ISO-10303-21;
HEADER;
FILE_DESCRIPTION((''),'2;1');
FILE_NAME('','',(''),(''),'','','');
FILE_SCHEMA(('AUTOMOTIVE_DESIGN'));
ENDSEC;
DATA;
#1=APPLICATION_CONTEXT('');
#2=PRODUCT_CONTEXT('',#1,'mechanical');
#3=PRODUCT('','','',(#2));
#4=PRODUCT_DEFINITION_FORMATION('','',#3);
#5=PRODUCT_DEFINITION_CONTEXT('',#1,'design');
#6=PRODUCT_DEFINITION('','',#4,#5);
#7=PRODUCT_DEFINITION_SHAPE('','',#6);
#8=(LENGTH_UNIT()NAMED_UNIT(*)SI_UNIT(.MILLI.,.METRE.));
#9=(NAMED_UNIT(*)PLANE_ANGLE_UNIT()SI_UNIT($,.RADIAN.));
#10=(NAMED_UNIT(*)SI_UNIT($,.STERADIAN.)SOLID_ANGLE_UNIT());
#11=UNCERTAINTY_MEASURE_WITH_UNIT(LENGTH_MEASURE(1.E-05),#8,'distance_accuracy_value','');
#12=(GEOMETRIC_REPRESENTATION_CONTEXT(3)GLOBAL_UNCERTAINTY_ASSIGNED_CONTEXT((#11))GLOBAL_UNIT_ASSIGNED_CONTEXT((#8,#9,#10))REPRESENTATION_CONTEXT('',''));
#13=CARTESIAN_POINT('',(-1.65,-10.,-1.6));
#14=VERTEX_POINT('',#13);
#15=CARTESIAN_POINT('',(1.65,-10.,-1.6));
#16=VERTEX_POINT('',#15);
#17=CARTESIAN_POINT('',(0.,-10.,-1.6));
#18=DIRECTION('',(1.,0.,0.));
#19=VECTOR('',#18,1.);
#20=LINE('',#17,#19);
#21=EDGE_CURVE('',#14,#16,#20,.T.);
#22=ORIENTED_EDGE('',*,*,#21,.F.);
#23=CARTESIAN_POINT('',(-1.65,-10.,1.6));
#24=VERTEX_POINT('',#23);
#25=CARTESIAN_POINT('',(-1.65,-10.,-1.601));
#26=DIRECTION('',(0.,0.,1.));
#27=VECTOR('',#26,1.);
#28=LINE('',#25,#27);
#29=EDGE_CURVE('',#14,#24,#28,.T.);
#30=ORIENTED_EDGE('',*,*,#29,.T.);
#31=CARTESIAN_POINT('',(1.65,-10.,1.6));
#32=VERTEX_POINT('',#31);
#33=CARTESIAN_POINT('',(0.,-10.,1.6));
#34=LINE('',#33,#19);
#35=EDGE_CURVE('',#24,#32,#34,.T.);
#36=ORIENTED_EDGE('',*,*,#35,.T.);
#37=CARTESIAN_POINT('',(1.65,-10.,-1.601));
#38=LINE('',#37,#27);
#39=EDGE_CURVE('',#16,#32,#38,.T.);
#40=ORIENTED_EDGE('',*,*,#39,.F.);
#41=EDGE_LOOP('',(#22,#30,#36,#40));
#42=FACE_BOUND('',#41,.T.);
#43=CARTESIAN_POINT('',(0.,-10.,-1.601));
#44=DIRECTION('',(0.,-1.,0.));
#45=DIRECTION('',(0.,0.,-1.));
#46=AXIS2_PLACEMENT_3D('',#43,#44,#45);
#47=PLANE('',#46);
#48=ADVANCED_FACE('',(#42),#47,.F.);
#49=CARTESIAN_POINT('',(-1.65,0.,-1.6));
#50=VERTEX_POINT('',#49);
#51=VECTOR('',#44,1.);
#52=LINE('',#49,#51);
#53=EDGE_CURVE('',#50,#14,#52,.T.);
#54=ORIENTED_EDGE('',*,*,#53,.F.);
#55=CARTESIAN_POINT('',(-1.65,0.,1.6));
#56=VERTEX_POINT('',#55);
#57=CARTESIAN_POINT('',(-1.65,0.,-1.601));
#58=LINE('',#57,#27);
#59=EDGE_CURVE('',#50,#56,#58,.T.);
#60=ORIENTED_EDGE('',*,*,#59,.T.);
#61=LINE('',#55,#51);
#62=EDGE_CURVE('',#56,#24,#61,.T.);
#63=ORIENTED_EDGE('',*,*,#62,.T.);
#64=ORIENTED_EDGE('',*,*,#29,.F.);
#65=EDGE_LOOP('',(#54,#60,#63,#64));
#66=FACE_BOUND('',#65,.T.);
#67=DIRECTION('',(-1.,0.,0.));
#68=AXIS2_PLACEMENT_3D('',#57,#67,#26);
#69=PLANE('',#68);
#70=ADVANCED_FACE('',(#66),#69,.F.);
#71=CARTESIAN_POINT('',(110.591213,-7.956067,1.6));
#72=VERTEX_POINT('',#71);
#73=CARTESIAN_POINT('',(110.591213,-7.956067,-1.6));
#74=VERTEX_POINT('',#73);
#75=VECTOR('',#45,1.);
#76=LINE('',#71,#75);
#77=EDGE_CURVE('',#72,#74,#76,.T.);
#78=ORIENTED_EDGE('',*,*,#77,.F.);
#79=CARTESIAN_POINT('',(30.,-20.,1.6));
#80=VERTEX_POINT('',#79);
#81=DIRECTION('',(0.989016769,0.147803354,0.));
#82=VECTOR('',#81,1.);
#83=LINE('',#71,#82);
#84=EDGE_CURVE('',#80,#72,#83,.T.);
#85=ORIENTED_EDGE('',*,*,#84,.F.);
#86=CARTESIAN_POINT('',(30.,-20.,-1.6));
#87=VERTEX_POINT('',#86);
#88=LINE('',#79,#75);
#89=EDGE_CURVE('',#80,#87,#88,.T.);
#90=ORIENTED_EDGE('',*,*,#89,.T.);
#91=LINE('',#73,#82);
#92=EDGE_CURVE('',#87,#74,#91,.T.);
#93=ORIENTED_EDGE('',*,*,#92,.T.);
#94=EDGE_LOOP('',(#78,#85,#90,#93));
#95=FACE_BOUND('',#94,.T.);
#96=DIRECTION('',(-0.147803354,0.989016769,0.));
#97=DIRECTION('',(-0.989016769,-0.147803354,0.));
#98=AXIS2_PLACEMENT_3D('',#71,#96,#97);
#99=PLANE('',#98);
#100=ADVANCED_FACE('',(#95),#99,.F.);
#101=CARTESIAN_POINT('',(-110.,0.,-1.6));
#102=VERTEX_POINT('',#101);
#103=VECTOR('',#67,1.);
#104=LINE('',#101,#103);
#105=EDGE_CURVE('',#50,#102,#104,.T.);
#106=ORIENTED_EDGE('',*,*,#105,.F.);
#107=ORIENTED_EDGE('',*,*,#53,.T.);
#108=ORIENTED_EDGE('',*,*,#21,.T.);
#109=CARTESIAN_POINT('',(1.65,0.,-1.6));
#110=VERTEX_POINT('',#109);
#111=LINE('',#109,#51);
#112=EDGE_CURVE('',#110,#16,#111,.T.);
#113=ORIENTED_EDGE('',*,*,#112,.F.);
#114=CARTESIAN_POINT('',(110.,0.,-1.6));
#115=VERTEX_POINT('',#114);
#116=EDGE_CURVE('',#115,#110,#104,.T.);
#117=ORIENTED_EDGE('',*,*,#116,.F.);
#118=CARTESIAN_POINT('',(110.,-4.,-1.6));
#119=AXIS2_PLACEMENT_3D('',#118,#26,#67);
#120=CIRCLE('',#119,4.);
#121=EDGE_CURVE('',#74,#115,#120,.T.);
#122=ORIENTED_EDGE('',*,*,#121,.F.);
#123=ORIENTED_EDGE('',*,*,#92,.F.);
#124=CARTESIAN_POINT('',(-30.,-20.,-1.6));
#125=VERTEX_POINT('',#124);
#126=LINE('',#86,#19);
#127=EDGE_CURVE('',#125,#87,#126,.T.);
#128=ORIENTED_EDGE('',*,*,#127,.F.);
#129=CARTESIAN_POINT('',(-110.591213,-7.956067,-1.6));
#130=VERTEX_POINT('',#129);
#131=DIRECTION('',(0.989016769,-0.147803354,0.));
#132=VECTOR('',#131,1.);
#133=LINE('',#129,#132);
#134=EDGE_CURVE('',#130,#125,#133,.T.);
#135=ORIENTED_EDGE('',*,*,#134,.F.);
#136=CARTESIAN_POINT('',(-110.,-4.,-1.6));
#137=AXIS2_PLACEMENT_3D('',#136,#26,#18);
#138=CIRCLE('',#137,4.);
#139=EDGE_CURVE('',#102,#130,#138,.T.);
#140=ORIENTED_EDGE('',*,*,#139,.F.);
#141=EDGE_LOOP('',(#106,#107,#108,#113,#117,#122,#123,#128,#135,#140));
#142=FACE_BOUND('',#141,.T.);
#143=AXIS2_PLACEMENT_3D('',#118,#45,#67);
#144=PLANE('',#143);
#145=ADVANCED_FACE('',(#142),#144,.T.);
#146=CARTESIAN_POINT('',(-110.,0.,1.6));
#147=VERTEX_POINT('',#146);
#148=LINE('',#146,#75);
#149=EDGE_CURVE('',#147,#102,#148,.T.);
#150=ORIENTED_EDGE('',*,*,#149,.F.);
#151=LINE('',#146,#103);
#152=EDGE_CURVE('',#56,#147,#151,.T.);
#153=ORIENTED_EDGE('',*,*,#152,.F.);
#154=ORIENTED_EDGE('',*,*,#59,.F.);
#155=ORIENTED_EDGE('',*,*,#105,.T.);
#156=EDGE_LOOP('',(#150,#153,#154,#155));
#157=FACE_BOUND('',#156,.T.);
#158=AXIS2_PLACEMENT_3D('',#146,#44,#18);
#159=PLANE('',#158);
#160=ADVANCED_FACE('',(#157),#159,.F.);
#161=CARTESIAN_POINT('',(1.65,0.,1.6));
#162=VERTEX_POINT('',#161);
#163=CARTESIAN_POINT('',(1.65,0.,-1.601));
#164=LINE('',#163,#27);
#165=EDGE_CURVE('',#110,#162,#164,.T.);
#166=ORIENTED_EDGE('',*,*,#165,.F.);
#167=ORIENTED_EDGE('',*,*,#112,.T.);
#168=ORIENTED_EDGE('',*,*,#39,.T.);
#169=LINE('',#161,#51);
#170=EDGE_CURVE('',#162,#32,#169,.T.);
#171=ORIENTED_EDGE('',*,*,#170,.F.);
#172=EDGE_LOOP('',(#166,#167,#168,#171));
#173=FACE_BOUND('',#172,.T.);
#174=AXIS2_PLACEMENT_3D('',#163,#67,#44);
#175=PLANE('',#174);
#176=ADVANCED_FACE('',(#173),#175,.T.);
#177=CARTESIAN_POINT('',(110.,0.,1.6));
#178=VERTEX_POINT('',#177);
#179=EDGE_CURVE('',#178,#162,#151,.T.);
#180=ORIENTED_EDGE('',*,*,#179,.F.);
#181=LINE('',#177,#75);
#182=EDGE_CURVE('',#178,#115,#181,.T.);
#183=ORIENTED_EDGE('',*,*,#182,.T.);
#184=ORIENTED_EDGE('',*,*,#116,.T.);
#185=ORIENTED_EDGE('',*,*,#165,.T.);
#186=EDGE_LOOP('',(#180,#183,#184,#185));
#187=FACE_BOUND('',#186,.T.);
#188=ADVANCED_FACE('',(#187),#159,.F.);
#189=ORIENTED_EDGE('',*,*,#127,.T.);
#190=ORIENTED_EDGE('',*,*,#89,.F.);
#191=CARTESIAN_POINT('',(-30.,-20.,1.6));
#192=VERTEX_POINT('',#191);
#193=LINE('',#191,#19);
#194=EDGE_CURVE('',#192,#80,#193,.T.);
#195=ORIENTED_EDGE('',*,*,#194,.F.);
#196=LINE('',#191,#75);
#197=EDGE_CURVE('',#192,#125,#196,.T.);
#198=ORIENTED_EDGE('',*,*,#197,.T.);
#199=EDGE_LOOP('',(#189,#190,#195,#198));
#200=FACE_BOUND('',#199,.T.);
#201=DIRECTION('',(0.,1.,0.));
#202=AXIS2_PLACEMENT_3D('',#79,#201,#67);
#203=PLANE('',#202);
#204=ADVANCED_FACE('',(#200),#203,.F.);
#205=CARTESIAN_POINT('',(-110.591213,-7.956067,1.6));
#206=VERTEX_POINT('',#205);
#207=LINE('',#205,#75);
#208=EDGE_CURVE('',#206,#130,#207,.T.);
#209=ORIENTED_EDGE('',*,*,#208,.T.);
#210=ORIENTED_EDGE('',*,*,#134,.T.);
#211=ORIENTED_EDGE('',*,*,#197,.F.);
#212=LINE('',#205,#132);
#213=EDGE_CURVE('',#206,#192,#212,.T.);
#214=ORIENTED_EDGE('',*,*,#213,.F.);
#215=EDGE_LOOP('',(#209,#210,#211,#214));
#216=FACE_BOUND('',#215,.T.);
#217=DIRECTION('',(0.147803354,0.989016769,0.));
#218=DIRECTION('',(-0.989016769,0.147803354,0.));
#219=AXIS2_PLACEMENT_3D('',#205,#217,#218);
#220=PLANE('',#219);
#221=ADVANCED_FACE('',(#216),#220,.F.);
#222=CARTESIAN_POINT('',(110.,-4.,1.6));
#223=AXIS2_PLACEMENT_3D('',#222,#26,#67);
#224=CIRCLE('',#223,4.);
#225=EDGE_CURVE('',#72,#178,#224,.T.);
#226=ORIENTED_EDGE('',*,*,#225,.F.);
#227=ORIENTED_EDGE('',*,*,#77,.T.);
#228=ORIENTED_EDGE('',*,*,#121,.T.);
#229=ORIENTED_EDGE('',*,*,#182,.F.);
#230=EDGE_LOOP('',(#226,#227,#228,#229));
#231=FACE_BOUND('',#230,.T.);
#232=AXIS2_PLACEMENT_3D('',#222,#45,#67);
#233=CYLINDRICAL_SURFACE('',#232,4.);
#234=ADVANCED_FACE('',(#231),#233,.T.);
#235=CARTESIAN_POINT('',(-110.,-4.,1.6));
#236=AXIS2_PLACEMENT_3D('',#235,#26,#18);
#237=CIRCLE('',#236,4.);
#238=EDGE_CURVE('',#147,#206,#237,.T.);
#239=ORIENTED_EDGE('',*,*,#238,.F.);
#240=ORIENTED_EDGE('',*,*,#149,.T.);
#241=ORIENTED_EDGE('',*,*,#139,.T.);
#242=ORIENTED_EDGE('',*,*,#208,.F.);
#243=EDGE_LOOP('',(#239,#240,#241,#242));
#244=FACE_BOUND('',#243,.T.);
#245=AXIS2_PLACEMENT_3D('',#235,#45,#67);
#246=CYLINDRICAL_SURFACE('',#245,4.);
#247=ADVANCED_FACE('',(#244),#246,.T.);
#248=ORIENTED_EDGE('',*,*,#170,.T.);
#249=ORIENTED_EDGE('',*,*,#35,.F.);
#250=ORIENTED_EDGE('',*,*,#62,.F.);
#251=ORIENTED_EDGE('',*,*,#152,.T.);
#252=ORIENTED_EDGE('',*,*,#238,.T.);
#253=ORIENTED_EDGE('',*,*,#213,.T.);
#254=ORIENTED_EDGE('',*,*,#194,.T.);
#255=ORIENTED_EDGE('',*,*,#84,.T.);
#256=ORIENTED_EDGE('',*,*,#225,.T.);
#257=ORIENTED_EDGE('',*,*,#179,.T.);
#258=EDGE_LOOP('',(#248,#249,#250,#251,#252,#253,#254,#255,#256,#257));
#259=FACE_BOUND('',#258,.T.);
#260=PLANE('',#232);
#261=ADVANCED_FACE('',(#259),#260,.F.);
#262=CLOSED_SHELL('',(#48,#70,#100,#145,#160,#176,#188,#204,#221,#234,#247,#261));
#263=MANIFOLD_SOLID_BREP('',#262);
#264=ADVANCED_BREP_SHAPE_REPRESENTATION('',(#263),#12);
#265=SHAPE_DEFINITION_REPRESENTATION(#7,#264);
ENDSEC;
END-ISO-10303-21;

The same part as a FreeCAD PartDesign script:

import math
import FreeCAD as App
import Part
import Sketcher
from FreeCAD import Vector
Q = App.Units.Quantity


def add_polygon(sketch, points):
    """Adds a closed chain of lines whose ends are joined by coincident constraints."""
    first, n = sketch.GeometryCount, len(points)
    for a, b in zip(points, points[1:] + points[:1]):
        sketch.addGeometry(Part.LineSegment(App.Vector(*a, 0), App.Vector(*b, 0)), False)
    for i in range(n):
        sketch.addConstraint(Sketcher.Constraint("Coincident", first + i, 2, first + (i + 1) % n, 1))

doc = App.newDocument("Part")
body = doc.addObject("PartDesign::Body", "Body")

# Sketch on XY plane
sketch1 = body.newObject("Sketcher::SketchObject", "Sketch")
sketch1.AttachmentSupport = (doc.getObject("XY_Plane"), [""])
sketch1.MapMode = "FlatFace"
sketch1.addGeometry([
    Part.LineSegment(Vector(110, 0, 0), Vector(-110, 0, 0)),  # 0
    Part.ArcOfCircle(Part.Circle(Vector(-110, -4, 0), Vector(0, 0, 1), 4), math.radians(90), math.radians(261.500351)),  # 1
    Part.LineSegment(Vector(-110.591213, -7.956067, 0), Vector(-30, -20, 0)),  # 2
    Part.LineSegment(Vector(-30, -20, 0), Vector(30, -20, 0)),  # 3
    Part.LineSegment(Vector(30, -20, 0), Vector(110.591213, -7.956067, 0)),  # 4
    Part.ArcOfCircle(Part.Circle(Vector(110, -4, 0), Vector(0, 0, 1), 4), math.radians(-81.500351), math.radians(90)),  # 5
], False)
sketch1.addConstraint([
    Sketcher.Constraint("Tangent", 0, 2, 1, 1),
    Sketcher.Constraint("Tangent", 1, 2, 2, 1),
    Sketcher.Constraint("Coincident", 2, 2, 3, 1),
    Sketcher.Constraint("Coincident", 3, 2, 4, 1),
    Sketcher.Constraint("Tangent", 4, 2, 5, 1),
    Sketcher.Constraint("Tangent", 5, 2, 0, 1),
    Sketcher.Constraint("Horizontal", 0),
    Sketcher.Constraint("Horizontal", 3),
    Sketcher.Constraint("Equal", 1, 5),
    Sketcher.Constraint("Symmetric", 0, 2, 5, 2, -1, 1),
    Sketcher.Constraint("Equal", 2, 4),
    Sketcher.Constraint("Radius", 1, Q("4 mm")),
    Sketcher.Constraint("DistanceX", 0, 2, 0, 1, Q("220 mm")),
    Sketcher.Constraint("DistanceX", 3, 1, 3, 2, Q("60 mm")),
    Sketcher.Constraint("DistanceY", 2, 2, -1, 1, Q("20 mm")),
])
pad1 = body.newObject("PartDesign::Pad", "Pad")
pad1.Profile = sketch1
pad1.Length = 3.2
pad1.Midplane = True

# Sketch on XY plane
sketch2 = body.newObject("Sketcher::SketchObject", "Sketch001")
sketch2.AttachmentSupport = (doc.getObject("XY_Plane"), [""])
sketch2.MapMode = "FlatFace"
sketch2.AttachmentOffset = App.Placement(Vector(0, 0, 1.6), App.Rotation())
add_polygon(sketch2, [(-1.65, 0), (-1.65, -10), (1.65, -10), (1.65, 0)])  # lines 0-3
sketch2.addConstraint([
    Sketcher.Constraint("Vertical", 0),
    Sketcher.Constraint("Horizontal", 1),
    Sketcher.Constraint("Vertical", 2),
    Sketcher.Constraint("Horizontal", 3),
    Sketcher.Constraint("Symmetric", 2, 2, 3, 2, -1, 1),
    Sketcher.Constraint("DistanceY", 0, 2, 0, 1, Q("10 mm")),
    Sketcher.Constraint("DistanceX", 1, 1, 1, 2, Q("3.3 mm")),
])
pocket1 = body.newObject("PartDesign::Pocket", "Pocket")
pocket1.Profile = sketch2
pocket1.Type = "UpToFirst"

doc.recompute()
